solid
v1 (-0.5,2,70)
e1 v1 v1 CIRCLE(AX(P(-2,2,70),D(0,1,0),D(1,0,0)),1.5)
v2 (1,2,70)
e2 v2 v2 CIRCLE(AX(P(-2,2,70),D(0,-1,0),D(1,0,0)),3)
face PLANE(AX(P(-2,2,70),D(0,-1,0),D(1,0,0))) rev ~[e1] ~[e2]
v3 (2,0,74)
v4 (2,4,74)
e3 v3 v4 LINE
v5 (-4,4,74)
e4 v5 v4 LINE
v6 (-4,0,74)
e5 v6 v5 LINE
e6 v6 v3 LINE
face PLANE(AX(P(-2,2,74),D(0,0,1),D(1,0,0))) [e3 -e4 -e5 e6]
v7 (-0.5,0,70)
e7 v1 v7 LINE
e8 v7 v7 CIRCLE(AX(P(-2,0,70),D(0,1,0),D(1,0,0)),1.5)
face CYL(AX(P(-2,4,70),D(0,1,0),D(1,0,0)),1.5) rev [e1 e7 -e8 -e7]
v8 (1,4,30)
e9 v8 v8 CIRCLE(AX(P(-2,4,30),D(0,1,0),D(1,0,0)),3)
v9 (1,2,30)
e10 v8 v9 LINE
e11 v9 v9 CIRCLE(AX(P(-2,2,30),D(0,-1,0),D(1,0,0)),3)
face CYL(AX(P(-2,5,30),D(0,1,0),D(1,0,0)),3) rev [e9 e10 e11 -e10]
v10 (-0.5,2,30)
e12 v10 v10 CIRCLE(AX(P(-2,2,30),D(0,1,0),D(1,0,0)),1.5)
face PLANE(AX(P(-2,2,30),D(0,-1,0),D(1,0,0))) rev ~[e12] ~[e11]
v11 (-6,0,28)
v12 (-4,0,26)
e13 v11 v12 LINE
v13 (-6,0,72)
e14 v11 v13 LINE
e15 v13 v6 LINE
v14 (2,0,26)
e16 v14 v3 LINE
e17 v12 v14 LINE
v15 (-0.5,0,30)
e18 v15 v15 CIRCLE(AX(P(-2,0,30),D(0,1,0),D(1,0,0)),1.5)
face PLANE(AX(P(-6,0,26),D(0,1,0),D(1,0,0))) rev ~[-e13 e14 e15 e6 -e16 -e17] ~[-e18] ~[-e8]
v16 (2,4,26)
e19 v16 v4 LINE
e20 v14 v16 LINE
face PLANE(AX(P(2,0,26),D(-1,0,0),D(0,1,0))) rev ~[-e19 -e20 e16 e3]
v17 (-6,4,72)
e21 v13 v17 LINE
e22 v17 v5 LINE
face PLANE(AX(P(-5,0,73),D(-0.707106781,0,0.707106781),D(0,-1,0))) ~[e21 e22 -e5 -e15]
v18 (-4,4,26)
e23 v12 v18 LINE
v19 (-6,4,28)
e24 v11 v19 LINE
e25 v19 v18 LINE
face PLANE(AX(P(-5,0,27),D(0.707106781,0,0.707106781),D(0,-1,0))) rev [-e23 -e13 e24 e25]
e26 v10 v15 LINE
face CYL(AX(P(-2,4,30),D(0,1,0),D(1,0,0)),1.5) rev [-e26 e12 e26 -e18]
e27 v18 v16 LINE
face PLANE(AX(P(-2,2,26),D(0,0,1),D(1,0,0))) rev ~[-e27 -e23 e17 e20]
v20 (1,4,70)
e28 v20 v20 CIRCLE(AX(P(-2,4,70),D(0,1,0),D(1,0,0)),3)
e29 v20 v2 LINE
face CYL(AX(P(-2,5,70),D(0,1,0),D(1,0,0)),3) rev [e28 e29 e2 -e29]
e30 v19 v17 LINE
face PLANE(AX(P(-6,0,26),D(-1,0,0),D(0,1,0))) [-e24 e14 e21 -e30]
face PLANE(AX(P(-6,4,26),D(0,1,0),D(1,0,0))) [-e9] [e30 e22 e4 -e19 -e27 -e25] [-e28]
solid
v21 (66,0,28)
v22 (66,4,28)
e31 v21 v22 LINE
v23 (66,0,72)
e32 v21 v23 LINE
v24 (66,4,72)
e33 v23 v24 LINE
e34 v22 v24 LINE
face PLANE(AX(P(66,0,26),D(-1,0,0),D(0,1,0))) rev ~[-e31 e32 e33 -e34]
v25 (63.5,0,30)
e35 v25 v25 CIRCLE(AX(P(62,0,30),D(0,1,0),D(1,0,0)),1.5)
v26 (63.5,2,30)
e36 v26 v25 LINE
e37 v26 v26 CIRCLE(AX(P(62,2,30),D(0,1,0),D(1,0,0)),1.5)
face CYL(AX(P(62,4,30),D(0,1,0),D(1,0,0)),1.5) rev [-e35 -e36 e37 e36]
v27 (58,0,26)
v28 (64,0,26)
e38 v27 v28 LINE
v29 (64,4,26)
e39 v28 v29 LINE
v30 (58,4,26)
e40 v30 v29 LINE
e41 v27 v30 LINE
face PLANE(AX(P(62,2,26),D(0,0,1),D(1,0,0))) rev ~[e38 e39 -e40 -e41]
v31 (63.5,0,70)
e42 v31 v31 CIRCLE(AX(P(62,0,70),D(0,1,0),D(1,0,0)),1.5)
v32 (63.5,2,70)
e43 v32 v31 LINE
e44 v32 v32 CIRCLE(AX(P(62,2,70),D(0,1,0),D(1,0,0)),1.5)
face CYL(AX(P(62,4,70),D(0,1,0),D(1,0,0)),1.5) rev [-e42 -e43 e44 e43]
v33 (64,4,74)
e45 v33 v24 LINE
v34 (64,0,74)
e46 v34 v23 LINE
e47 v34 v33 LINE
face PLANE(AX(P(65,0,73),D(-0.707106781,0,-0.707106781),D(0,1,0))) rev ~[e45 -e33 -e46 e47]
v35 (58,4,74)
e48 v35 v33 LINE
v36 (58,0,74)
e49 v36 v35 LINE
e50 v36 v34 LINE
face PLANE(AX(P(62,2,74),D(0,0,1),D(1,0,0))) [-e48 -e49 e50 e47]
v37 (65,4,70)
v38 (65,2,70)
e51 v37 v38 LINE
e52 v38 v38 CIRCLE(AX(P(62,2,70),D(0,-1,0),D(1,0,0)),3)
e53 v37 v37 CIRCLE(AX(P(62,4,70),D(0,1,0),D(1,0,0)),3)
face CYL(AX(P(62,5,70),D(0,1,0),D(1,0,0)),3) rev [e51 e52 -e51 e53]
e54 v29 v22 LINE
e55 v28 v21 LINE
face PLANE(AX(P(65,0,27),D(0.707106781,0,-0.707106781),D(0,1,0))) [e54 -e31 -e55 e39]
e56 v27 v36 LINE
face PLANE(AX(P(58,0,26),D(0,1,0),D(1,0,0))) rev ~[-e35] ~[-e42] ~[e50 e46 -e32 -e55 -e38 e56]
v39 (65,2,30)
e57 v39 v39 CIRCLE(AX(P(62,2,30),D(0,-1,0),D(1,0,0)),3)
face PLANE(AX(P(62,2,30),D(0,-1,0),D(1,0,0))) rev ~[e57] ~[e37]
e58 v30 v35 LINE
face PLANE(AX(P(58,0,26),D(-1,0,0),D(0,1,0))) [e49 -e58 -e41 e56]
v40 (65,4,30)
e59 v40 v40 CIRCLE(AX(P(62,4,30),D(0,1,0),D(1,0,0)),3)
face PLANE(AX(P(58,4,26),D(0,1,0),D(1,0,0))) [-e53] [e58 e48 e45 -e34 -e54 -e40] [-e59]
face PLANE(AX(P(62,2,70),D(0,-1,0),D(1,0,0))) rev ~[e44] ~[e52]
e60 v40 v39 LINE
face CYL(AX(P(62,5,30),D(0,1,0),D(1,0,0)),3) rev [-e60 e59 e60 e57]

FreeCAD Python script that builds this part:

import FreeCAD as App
import Part
import Sketcher
Q = App.Units.Quantity


def edges_at(feature, points):
    """Names of the edges that pass closest to the given points."""
    edges = feature.Shape.Edges
    near = lambda p: min(range(len(edges)), key=lambda i: edges[i].distToShape(Part.Vertex(*p))[0])
    return sorted({f"Edge{near(p) + 1}" for p in points})


def add_polygon(sketch, points):
    """Adds a closed chain of lines whose ends are joined by coincident constraints."""
    first, n = sketch.GeometryCount, len(points)
    for a, b in zip(points, points[1:] + points[:1]):
        sketch.addGeometry(Part.LineSegment(App.Vector(*a, 0), App.Vector(*b, 0)), False)
    for i in range(n):
        sketch.addConstraint(Sketcher.Constraint("Coincident", first + i, 2, first + (i + 1) % n, 1))

doc = App.newDocument("Part")
body = doc.addObject("PartDesign::Body", "Body")

# Sketch on XZ plane
sketch1 = body.newObject("Sketcher::SketchObject", "Sketch")
sketch1.AttachmentSupport = (doc.getObject("XZ_Plane"), [""])
sketch1.MapMode = "FlatFace"
sketch1.AttachmentOffset = App.Placement(App.Vector(0, 0, -4), App.Rotation())
sketch1.addGeometry(Part.Circle(App.Vector(62, 70, 0), App.Vector(0, 0, 1), 3), False)
sketch1.addConstraint([
    Sketcher.Constraint("Diameter", 0, Q("6 mm")),
    Sketcher.Constraint("DistanceX", -1, 1, 0, 3, Q("62 mm")),
    Sketcher.Constraint("DistanceY", -1, 1, 0, 3, Q("70 mm")),
])
pad1 = body.newObject("PartDesign::Pad", "Pad")
pad1.Profile = sketch1
pad1.Length = 3
body2 = doc.addObject("PartDesign::Body", "Body001")

# Sketch on XZ plane
sketch2 = body2.newObject("Sketcher::SketchObject", "Sketch001")
sketch2.AttachmentSupport = (doc.getObject("XZ_Plane001"), [""])
sketch2.MapMode = "FlatFace"
sketch2.AttachmentOffset = App.Placement(App.Vector(0, 0, -4), App.Rotation())
sketch2.addGeometry(Part.Circle(App.Vector(-2, 30, 0), App.Vector(0, 0, 1), 3), False)
sketch2.addConstraint([
    Sketcher.Constraint("Diameter", 0, Q("6 mm")),
    Sketcher.Constraint("DistanceX", 0, 3, -1, 1, Q("2 mm")),
    Sketcher.Constraint("DistanceY", -1, 1, 0, 3, Q("30 mm")),
])
pad2 = body2.newObject("PartDesign::Pad", "Pad001")
pad2.Profile = sketch2
pad2.Length = 3
body3 = doc.addObject("PartDesign::Body", "Body002")

# Sketch on XZ plane
sketch3 = body3.newObject("Sketcher::SketchObject", "Sketch002")
sketch3.AttachmentSupport = (doc.getObject("XZ_Plane002"), [""])
sketch3.MapMode = "FlatFace"
sketch3.AttachmentOffset = App.Placement(App.Vector(0, 0, -4), App.Rotation())
sketch3.addGeometry(Part.Circle(App.Vector(-2, 70, 0), App.Vector(0, 0, 1), 3), False)
sketch3.addConstraint([
    Sketcher.Constraint("Diameter", 0, Q("6 mm")),
    Sketcher.Constraint("DistanceX", 0, 3, -1, 1, Q("2 mm")),
    Sketcher.Constraint("DistanceY", -1, 1, 0, 3, Q("70 mm")),
])
pad3 = body3.newObject("PartDesign::Pad", "Pad002")
pad3.Profile = sketch3
pad3.Length = 3
body4 = doc.addObject("PartDesign::Body", "Body003")
body4.AllowCompound = True

# Sketch on XZ plane
sketch4 = body4.newObject("Sketcher::SketchObject", "Sketch003")
sketch4.AttachmentSupport = (doc.getObject("XZ_Plane003"), [""])
sketch4.MapMode = "FlatFace"
sketch4.AttachmentOffset = App.Placement(App.Vector(0, 0, -4), App.Rotation())
sketch4.addGeometry(Part.Circle(App.Vector(62, 30, 0), App.Vector(0, 0, 1), 3), False)
sketch4.addConstraint([
    Sketcher.Constraint("Diameter", 0, Q("6 mm")),
    Sketcher.Constraint("DistanceX", -1, 1, 0, 3, Q("62 mm")),
    Sketcher.Constraint("DistanceY", -1, 1, 0, 3, Q("30 mm")),
])
pad4 = body4.newObject("PartDesign::Pad", "Pad003")
pad4.Profile = sketch4
pad4.Length = 3
doc.recompute()

boolean = body4.newObject("PartDesign::Boolean", "Boolean")
boolean.Type = "Fuse"
boolean.addObjects([body])
doc.recompute()

boolean2 = body4.newObject("PartDesign::Boolean", "Boolean001")
boolean2.Type = "Fuse"
boolean2.addObjects([body2])
doc.recompute()

boolean3 = body4.newObject("PartDesign::Boolean", "Boolean002")
boolean3.Type = "Fuse"
boolean3.addObjects([body3])
body5 = doc.addObject("PartDesign::Body", "Body004")
body5.AllowCompound = True
doc.recompute()

body4.Placement = App.Placement(App.Vector(0, 1, 0), App.Rotation(App.Vector(0, 0, 1), 0))
boolean4 = body5.newObject("PartDesign::Boolean", "Boolean003")
boolean4.Type = "Fuse"
boolean4.addObjects([body4])
body6 = doc.addObject("PartDesign::Body", "Body005")

# Sketch on XZ plane
sketch5 = body6.newObject("Sketcher::SketchObject", "Sketch004")
sketch5.AttachmentSupport = (doc.getObject("XZ_Plane005"), [""])
sketch5.MapMode = "FlatFace"
sketch5.AttachmentOffset = App.Placement(App.Vector(0, 0, -4), App.Rotation())
sketch5.addGeometry(Part.Circle(App.Vector(-2, 70, 0), App.Vector(0, 0, 1), 1.5), False)
sketch5.addConstraint([
    Sketcher.Constraint("Diameter", 0, Q("3 mm")),
    Sketcher.Constraint("DistanceX", 0, 3, -1, 1, Q("2 mm")),
    Sketcher.Constraint("DistanceY", -1, 1, 0, 3, Q("70 mm")),
])
pad5 = body6.newObject("PartDesign::Pad", "Pad004")
pad5.Profile = sketch5
pad5.Length = 10
body7 = doc.addObject("PartDesign::Body", "Body006")

# Sketch on XZ plane
sketch6 = body7.newObject("Sketcher::SketchObject", "Sketch005")
sketch6.AttachmentSupport = (doc.getObject("XZ_Plane006"), [""])
sketch6.MapMode = "FlatFace"
sketch6.AttachmentOffset = App.Placement(App.Vector(0, 0, -4), App.Rotation())
sketch6.addGeometry(Part.Circle(App.Vector(62, 30, 0), App.Vector(0, 0, 1), 1.5), False)
sketch6.addConstraint([
    Sketcher.Constraint("Diameter", 0, Q("3 mm")),
    Sketcher.Constraint("DistanceX", -1, 1, 0, 3, Q("62 mm")),
    Sketcher.Constraint("DistanceY", -1, 1, 0, 3, Q("30 mm")),
])
pad6 = body7.newObject("PartDesign::Pad", "Pad005")
pad6.Profile = sketch6
pad6.Length = 10
body8 = doc.addObject("PartDesign::Body", "Body007")

# Sketch on XZ plane
sketch7 = body8.newObject("Sketcher::SketchObject", "Sketch006")
sketch7.AttachmentSupport = (doc.getObject("XZ_Plane007"), [""])
sketch7.MapMode = "FlatFace"
sketch7.AttachmentOffset = App.Placement(App.Vector(0, 0, -4), App.Rotation())
sketch7.addGeometry(Part.Circle(App.Vector(62, 70, 0), App.Vector(0, 0, 1), 1.5), False)
sketch7.addConstraint([
    Sketcher.Constraint("Diameter", 0, Q("3 mm")),
    Sketcher.Constraint("DistanceX", -1, 1, 0, 3, Q("62 mm")),
    Sketcher.Constraint("DistanceY", -1, 1, 0, 3, Q("70 mm")),
])
pad7 = body8.newObject("PartDesign::Pad", "Pad006")
pad7.Profile = sketch7
pad7.Length = 10
body9 = doc.addObject("PartDesign::Body", "Body008")
body9.AllowCompound = True

# Sketch on XZ plane
sketch8 = body9.newObject("Sketcher::SketchObject", "Sketch007")
sketch8.AttachmentSupport = (doc.getObject("XZ_Plane008"), [""])
sketch8.MapMode = "FlatFace"
sketch8.AttachmentOffset = App.Placement(App.Vector(0, 0, -4), App.Rotation())
sketch8.addGeometry(Part.Circle(App.Vector(-2, 30, 0), App.Vector(0, 0, 1), 1.5), False)
sketch8.addConstraint([
    Sketcher.Constraint("Diameter", 0, Q("3 mm")),
    Sketcher.Constraint("DistanceX", 0, 3, -1, 1, Q("2 mm")),
    Sketcher.Constraint("DistanceY", -1, 1, 0, 3, Q("30 mm")),
])
pad8 = body9.newObject("PartDesign::Pad", "Pad007")
pad8.Profile = sketch8
pad8.Length = 10
doc.recompute()

boolean5 = body9.newObject("PartDesign::Boolean", "Boolean004")
boolean5.Type = "Fuse"
boolean5.addObjects([body6])
doc.recompute()

boolean6 = body9.newObject("PartDesign::Boolean", "Boolean005")
boolean6.Type = "Fuse"
boolean6.addObjects([body7])
doc.recompute()

boolean7 = body9.newObject("PartDesign::Boolean", "Boolean006")
boolean7.Type = "Fuse"
boolean7.addObjects([body8])
body10 = doc.addObject("PartDesign::Body", "Body009")

# Sketch on XY plane
sketch9 = body10.newObject("Sketcher::SketchObject", "Sketch008")
sketch9.AttachmentSupport = (doc.getObject("XY_Plane009"), [""])
sketch9.MapMode = "FlatFace"
sketch9.AttachmentOffset = App.Placement(App.Vector(0, 0, 26), App.Rotation())
add_polygon(sketch9, [(58, 4), (58, 0), (66, 0), (66, 4)])  # lines 0-3
sketch9.addConstraint([
    Sketcher.Constraint("Vertical", 0),
    Sketcher.Constraint("Horizontal", 1),
    Sketcher.Constraint("Vertical", 2),
    Sketcher.Constraint("Horizontal", 3),
    Sketcher.Constraint("PointOnObject", 0, 2, -1),
    Sketcher.Constraint("DistanceX", 1, 1, 1, 2, Q("8 mm")),
    Sketcher.Constraint("DistanceY", 0, 2, 0, 1, Q("4 mm")),
    Sketcher.Constraint("DistanceX", -1, 1, 0, 2, Q("58 mm")),
])
pad9 = body10.newObject("PartDesign::Pad", "Pad008")
pad9.Profile = sketch9
pad9.Length = 48
body11 = doc.addObject("PartDesign::Body", "Body010")
body11.AllowCompound = True

# Sketch on XY plane
sketch10 = body11.newObject("Sketcher::SketchObject", "Sketch009")
sketch10.AttachmentSupport = (doc.getObject("XY_Plane010"), [""])
sketch10.MapMode = "FlatFace"
sketch10.AttachmentOffset = App.Placement(App.Vector(0, 0, 26), App.Rotation())
add_polygon(sketch10, [(-6, 4), (-6, 0), (2, 0), (2, 4)])  # lines 0-3
sketch10.addConstraint([
    Sketcher.Constraint("Vertical", 0),
    Sketcher.Constraint("Horizontal", 1),
    Sketcher.Constraint("Vertical", 2),
    Sketcher.Constraint("Horizontal", 3),
    Sketcher.Constraint("PointOnObject", 0, 2, -1),
    Sketcher.Constraint("DistanceX", 1, 1, 1, 2, Q("8 mm")),
    Sketcher.Constraint("DistanceY", 0, 2, 0, 1, Q("4 mm")),
    Sketcher.Constraint("DistanceX", 0, 2, -1, 1, Q("6 mm")),
])
pad10 = body11.newObject("PartDesign::Pad", "Pad009")
pad10.Profile = sketch10
pad10.Length = 48
doc.recompute()

boolean8 = body11.newObject("PartDesign::Boolean", "Boolean007")
boolean8.Type = "Fuse"
boolean8.addObjects([body10])
doc.recompute()

boolean9 = body11.newObject("PartDesign::Boolean", "Boolean008")
boolean9.Type = "Cut"
boolean9.addObjects([body9])
doc.recompute()

boolean10 = body11.newObject("PartDesign::Boolean", "Boolean009")
boolean10.Type = "Cut"
boolean10.addObjects([body5])
doc.recompute()

chamfer = body11.newObject("PartDesign::Chamfer", "Chamfer")
chamfer.Base = (boolean10, edges_at(boolean10, [(66, 2, 74), (66, 2, 26)]))
chamfer.Size = 2
doc.recompute()

chamfer2 = body11.newObject("PartDesign::Chamfer", "Chamfer001")
chamfer2.Base = (chamfer, edges_at(chamfer, [(-6, 2, 74), (-6, 2, 26)]))
chamfer2.Size = 2

doc.recompute()
